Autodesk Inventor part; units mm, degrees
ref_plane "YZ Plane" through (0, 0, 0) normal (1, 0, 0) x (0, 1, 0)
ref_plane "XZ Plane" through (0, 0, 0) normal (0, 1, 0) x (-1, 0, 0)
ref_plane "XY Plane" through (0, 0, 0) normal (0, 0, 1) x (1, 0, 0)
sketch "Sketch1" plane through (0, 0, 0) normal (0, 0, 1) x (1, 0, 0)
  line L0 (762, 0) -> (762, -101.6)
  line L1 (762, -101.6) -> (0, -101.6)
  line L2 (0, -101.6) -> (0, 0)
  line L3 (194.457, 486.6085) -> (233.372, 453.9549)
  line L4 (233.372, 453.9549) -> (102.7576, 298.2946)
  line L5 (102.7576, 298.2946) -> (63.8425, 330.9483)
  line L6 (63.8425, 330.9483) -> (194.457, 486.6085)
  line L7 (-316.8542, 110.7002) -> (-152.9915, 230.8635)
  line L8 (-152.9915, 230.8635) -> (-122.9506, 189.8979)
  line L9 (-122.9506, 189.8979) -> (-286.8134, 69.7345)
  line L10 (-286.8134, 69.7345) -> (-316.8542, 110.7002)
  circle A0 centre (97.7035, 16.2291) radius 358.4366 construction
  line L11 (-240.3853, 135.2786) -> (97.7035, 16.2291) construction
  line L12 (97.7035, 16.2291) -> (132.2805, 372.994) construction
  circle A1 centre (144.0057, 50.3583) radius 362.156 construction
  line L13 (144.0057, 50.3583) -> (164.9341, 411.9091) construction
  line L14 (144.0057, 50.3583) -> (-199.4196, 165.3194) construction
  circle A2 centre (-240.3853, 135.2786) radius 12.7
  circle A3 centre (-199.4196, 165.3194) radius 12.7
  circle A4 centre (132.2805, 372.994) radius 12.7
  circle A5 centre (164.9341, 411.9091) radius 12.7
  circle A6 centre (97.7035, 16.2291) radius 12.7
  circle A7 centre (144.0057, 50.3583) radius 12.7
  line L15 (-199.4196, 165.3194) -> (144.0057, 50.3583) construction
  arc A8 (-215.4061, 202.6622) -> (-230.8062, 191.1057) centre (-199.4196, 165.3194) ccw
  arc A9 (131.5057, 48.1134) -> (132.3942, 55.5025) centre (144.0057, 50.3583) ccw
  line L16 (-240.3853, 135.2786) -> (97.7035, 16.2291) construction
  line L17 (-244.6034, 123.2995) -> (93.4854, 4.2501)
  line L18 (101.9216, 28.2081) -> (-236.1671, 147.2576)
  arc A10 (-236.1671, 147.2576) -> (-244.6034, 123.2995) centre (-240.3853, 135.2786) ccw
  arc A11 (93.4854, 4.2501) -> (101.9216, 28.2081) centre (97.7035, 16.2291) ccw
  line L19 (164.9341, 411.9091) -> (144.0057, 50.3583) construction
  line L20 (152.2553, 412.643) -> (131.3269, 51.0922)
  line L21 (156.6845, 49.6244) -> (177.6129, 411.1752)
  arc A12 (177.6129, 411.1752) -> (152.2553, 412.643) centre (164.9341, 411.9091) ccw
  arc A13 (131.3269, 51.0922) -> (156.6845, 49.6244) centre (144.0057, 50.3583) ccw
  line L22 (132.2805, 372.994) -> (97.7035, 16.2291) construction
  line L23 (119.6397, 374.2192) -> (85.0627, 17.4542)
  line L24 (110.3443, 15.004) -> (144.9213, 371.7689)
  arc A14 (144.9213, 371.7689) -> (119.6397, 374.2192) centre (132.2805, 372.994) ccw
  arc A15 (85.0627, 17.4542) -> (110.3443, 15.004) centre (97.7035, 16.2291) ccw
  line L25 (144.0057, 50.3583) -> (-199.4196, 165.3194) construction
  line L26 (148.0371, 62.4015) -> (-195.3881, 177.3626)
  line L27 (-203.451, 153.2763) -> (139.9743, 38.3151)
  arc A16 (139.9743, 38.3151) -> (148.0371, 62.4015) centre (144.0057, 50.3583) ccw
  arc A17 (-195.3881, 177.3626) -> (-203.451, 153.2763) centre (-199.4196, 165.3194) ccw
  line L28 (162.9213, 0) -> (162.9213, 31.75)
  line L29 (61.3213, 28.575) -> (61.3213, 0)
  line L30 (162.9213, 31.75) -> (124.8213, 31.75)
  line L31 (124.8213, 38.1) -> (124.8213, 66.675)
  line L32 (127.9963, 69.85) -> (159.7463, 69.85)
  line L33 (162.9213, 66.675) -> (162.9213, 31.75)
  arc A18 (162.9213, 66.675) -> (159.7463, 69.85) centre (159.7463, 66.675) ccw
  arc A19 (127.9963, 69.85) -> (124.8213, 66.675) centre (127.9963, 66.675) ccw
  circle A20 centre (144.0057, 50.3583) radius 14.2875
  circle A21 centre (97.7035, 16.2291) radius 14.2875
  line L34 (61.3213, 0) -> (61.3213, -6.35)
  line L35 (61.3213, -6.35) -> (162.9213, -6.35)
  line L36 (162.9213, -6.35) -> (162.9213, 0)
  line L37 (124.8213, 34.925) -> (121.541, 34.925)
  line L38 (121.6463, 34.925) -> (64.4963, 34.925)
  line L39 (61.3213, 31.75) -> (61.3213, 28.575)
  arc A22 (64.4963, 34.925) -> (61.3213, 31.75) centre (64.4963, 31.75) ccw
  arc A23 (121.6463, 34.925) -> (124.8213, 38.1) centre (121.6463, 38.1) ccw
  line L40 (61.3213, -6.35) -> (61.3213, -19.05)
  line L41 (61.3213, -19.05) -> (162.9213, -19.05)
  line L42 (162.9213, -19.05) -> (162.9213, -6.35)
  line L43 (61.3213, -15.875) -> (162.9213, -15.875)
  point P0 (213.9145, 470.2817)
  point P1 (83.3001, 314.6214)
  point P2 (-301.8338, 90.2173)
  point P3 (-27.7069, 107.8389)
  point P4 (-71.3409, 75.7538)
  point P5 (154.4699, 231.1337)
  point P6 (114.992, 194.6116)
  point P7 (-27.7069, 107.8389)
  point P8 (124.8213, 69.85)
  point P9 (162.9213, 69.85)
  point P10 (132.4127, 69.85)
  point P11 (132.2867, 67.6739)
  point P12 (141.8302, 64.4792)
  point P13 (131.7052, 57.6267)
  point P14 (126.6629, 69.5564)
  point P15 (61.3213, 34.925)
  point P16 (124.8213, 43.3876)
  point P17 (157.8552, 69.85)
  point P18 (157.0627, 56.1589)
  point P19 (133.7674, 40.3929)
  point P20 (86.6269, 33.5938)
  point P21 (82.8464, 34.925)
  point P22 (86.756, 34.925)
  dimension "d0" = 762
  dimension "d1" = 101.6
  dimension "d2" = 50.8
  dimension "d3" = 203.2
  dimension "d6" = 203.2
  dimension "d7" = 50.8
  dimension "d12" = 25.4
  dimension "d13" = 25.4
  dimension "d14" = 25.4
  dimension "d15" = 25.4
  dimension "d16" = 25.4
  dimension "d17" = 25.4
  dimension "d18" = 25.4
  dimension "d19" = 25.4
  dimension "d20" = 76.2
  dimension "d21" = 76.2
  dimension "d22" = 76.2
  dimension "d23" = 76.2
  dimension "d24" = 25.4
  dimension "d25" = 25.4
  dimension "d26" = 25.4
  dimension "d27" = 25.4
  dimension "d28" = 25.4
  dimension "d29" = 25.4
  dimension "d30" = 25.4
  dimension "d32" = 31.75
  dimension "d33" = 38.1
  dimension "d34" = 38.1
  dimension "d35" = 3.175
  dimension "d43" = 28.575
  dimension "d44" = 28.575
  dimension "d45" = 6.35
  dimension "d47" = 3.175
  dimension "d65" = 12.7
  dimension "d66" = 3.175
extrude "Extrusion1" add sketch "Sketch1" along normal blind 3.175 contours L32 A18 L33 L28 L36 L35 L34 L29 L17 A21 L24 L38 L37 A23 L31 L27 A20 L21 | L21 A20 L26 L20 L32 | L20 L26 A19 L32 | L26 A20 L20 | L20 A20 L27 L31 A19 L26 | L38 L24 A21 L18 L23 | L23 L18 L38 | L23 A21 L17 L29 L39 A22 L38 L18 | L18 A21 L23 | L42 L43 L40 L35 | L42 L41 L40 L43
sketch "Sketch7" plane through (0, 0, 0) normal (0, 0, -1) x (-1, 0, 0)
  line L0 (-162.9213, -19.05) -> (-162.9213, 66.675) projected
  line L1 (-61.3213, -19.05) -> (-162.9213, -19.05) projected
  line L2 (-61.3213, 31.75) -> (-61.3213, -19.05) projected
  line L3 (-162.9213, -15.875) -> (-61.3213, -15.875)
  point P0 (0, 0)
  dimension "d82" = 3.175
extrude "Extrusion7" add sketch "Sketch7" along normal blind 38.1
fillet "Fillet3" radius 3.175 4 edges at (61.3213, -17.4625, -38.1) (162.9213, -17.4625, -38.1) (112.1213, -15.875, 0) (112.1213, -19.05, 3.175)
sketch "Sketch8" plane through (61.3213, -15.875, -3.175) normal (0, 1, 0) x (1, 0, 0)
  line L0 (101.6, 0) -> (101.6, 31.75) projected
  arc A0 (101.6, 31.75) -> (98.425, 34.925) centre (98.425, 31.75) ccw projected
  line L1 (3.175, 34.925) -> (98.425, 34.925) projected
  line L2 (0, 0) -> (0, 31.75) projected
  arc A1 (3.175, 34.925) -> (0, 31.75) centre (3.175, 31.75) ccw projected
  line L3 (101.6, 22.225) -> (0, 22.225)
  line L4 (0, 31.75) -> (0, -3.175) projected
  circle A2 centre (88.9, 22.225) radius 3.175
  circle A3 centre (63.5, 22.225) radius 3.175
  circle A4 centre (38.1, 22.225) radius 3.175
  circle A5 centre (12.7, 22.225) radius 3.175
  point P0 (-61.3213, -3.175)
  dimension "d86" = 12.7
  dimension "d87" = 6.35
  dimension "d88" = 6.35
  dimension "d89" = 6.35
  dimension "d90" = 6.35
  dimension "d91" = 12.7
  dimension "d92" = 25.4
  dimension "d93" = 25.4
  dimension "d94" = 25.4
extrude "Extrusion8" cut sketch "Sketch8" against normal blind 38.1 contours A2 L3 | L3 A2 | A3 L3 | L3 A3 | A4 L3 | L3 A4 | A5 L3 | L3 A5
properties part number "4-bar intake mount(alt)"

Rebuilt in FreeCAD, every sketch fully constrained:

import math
import FreeCAD as App
import Part
import Sketcher
Q = App.Units.Quantity


def edges_at(feature, points):
    """Names of the edges that pass closest to the given points."""
    edges = feature.Shape.Edges
    near = lambda p: min(range(len(edges)), key=lambda i: edges[i].distToShape(Part.Vertex(*p))[0])
    return sorted({f"Edge{near(p) + 1}" for p in points})

doc = App.newDocument("Part")
body = doc.addObject("PartDesign::Body", "Body")

# Sketch on XY plane
sketch1 = doc.addObject("Sketcher::SketchObject", "Sketch")
body.addObject(sketch1)
sketch1.AttachmentSupport = (doc.XY_Plane, [""])
sketch1.MapMode = "FlatFace"
sketch1.addGeometry(Part.LineSegment(App.Vector(159.7463, 69.85, 0), App.Vector(127.9963, 69.85, 0)), False)
sketch1.addGeometry(Part.ArcOfCircle(Part.Circle(App.Vector(127.9963, 66.675, 0), App.Vector(0, 0, 1), 3.175), math.radians(90), math.radians(180)), False)
sketch1.addGeometry(Part.LineSegment(App.Vector(124.8213, 66.675, 0), App.Vector(124.8213, 38.1, 0)), False)
sketch1.addGeometry(Part.ArcOfCircle(Part.Circle(App.Vector(121.6463, 38.1, 0), App.Vector(0, 0, 1), 3.175), math.radians(-90), math.radians(0)), False)
sketch1.addGeometry(Part.LineSegment(App.Vector(121.6463, 34.925, 0), App.Vector(64.4963, 34.925, 0)), False)
sketch1.addGeometry(Part.ArcOfCircle(Part.Circle(App.Vector(64.4963, 31.75, 0), App.Vector(0, 0, 1), 3.175), math.radians(90), math.radians(180)), False)
sketch1.addGeometry(Part.LineSegment(App.Vector(61.3213, 31.75, 0), App.Vector(61.3213, -19.05, 0)), False)
sketch1.addGeometry(Part.LineSegment(App.Vector(61.3213, -19.05, 0), App.Vector(162.9213, -19.05, 0)), False)
sketch1.addGeometry(Part.LineSegment(App.Vector(162.9213, -19.05, 0), App.Vector(162.9213, 66.675, 0)), False)
sketch1.addGeometry(Part.ArcOfCircle(Part.Circle(App.Vector(159.7463, 66.675, 0), App.Vector(0, 0, 1), 3.175), math.radians(0), math.radians(90)), False)
sketch1.addGeometry(Part.Circle(App.Vector(97.7035, 16.2291, 0), App.Vector(0, 0, 1), 14.2875), False)
sketch1.addGeometry(Part.Circle(App.Vector(144.0057, 50.3583, 0), App.Vector(0, 0, 1), 14.2875), False)
sketch1.addConstraint(Sketcher.Constraint("Tangent", 0, 2, 1, 1))
sketch1.addConstraint(Sketcher.Constraint("Tangent", 1, 2, 2, 1))
sketch1.addConstraint(Sketcher.Constraint("Tangent", 2, 2, 3, 2))
sketch1.addConstraint(Sketcher.Constraint("Tangent", 3, 1, 4, 1))
sketch1.addConstraint(Sketcher.Constraint("Tangent", 4, 2, 5, 1))
sketch1.addConstraint(Sketcher.Constraint("Tangent", 5, 2, 6, 1))
sketch1.addConstraint(Sketcher.Constraint("Coincident", 6, 2, 7, 1))
sketch1.addConstraint(Sketcher.Constraint("Coincident", 7, 2, 8, 1))
sketch1.addConstraint(Sketcher.Constraint("Tangent", 8, 2, 9, 1))
sketch1.addConstraint(Sketcher.Constraint("Tangent", 9, 2, 0, 1))
sketch1.addConstraint(Sketcher.Constraint("Horizontal", 0))
sketch1.addConstraint(Sketcher.Constraint("Vertical", 2))
sketch1.addConstraint(Sketcher.Constraint("Horizontal", 4))
sketch1.addConstraint(Sketcher.Constraint("Vertical", 6))
sketch1.addConstraint(Sketcher.Constraint("Horizontal", 7))
sketch1.addConstraint(Sketcher.Constraint("Vertical", 8))
sketch1.addConstraint(Sketcher.Constraint("Equal", 1, 3))
sketch1.addConstraint(Sketcher.Constraint("Equal", 3, 5))
sketch1.addConstraint(Sketcher.Constraint("Equal", 5, 9))
sketch1.addConstraint(Sketcher.Constraint("Equal", 10, 11))
sketch1.addConstraint(Sketcher.Constraint("DistanceX", 7, 1, 7, 2, Q("4 in")))
sketch1.addConstraint(Sketcher.Constraint("DistanceY", 6, 2, 6, 1, Q("2 in")))
sketch1.addConstraint(Sketcher.Constraint("Diameter", 10, Q("1.125 in")))
sketch1.addConstraint(Sketcher.Constraint("Radius", 1, Q("0.125 in")))
sketch1.addConstraint(Sketcher.Constraint("DistanceX", 0, 2, 0, 1, Q("1.25 in")))
sketch1.addConstraint(Sketcher.Constraint("DistanceY", -1, 1, 3, 3, Q("1.5 in")))
sketch1.addConstraint(Sketcher.Constraint("DistanceY", 2, 2, 2, 1, Q("1.125 in")))
sketch1.addConstraint(Sketcher.Constraint("DistanceX", -1, 1, 10, 3, Q("3.8466 in")))
sketch1.addConstraint(Sketcher.Constraint("DistanceY", -1, 1, 11, 3, Q("1.9826 in")))
sketch1.addConstraint(Sketcher.Constraint("DistanceX", 11, 3, 9, 3, Q("0.6197 in")))
sketch1.addConstraint(Sketcher.Constraint("DistanceX", -1, 1, 1, 3, 127.9963))
sketch1.addConstraint(Sketcher.Constraint("DistanceY", -1, 1, 10, 3, 16.229))
pad1 = doc.addObject("PartDesign::Pad", "Pad")
body.addObject(pad1)
pad1.Profile = sketch1
pad1.Length = Q("0.125 in")

# Sketch on XY plane
sketch2 = doc.addObject("Sketcher::SketchObject", "Sketch001")
body.addObject(sketch2)
sketch2.AttachmentSupport = (doc.XY_Plane, [""])
sketch2.MapMode = "FlatFace"
sketch2.addGeometry(Part.LineSegment(App.Vector(162.9213, -15.875, 0), App.Vector(162.9213, -19.05, 0)), False)
sketch2.addGeometry(Part.LineSegment(App.Vector(162.9213, -19.05, 0), App.Vector(61.3213, -19.05, 0)), False)
sketch2.addGeometry(Part.LineSegment(App.Vector(61.3213, -19.05, 0), App.Vector(61.3213, -15.875, 0)), False)
sketch2.addGeometry(Part.LineSegment(App.Vector(61.3213, -15.875, 0), App.Vector(162.9213, -15.875, 0)), False)
sketch2.addConstraint(Sketcher.Constraint("Coincident", 0, 2, 1, 1))
sketch2.addConstraint(Sketcher.Constraint("Coincident", 1, 2, 2, 1))
sketch2.addConstraint(Sketcher.Constraint("Coincident", 2, 2, 3, 1))
sketch2.addConstraint(Sketcher.Constraint("Coincident", 3, 2, 0, 1))
sketch2.addConstraint(Sketcher.Constraint("Vertical", 0))
sketch2.addConstraint(Sketcher.Constraint("Horizontal", 1))
sketch2.addConstraint(Sketcher.Constraint("Vertical", 2))
sketch2.addConstraint(Sketcher.Constraint("Horizontal", 3))
sketch2.addConstraint(Sketcher.Constraint("DistanceX", 1, 2, 1, 1, Q("4 in")))
sketch2.addConstraint(Sketcher.Constraint("DistanceY", 0, 2, 0, 1, Q("0.125 in")))
sketch2.addConstraint(Sketcher.Constraint("DistanceY", 0, 2, -1, 1, Q("0.75 in")))
sketch2.addConstraint(Sketcher.Constraint("DistanceX", -1, 1, 0, 2, 162.9213))
pad2 = doc.addObject("PartDesign::Pad", "Pad001")
body.addObject(pad2)
pad2.Profile = sketch2
pad2.Length = Q("1.5 in")
pad2.Reversed = True
doc.recompute()

fillet = doc.addObject("PartDesign::Fillet", "Fillet")
body.addObject(fillet)
fillet.Base = (pad2, edges_at(pad2, [
    (61.321, -17.462, -38.1),
    (162.921, -17.462, -38.1),
    (112.121, -15.875, 0),
    (112.121, -19.05, 3.175),
]))
fillet.Radius = Q("0.125 in")

# Sketch on XZ plane
sketch3 = doc.addObject("Sketcher::SketchObject", "Sketch002")
body.addObject(sketch3)
sketch3.AttachmentSupport = (doc.XZ_Plane, [""])
sketch3.MapMode = "FlatFace"
sketch3.AttachmentOffset = App.Placement(App.Vector(0, 0, 0.625 * 25.4), App.Rotation())
sketch3.addGeometry(Part.Circle(App.Vector(150.2213, -25.4, 0), App.Vector(0, 0, 1), 3.175), False)
sketch3.addGeometry(Part.Circle(App.Vector(124.8213, -25.4, 0), App.Vector(0, 0, 1), 3.175), False)
sketch3.addGeometry(Part.Circle(App.Vector(99.4213, -25.4, 0), App.Vector(0, 0, 1), 3.175), False)
sketch3.addGeometry(Part.Circle(App.Vector(74.0213, -25.4, 0), App.Vector(0, 0, 1), 3.175), False)
sketch3.addConstraint(Sketcher.Constraint("Equal", 0, 1))
sketch3.addConstraint(Sketcher.Constraint("Equal", 1, 2))
sketch3.addConstraint(Sketcher.Constraint("Equal", 2, 3))
sketch3.addConstraint(Sketcher.Constraint("Horizontal", 0, 3, 1, 3))
sketch3.addConstraint(Sketcher.Constraint("Horizontal", 1, 3, 2, 3))
sketch3.addConstraint(Sketcher.Constraint("Horizontal", 2, 3, 3, 3))
sketch3.addConstraint(Sketcher.Constraint("Diameter", 0, Q("0.25 in")))
sketch3.addConstraint(Sketcher.Constraint("DistanceY", 0, 3, -1, 1, Q("1 in")))
sketch3.addConstraint(Sketcher.Constraint("DistanceX", 1, 3, 0, 3, Q("1 in")))
sketch3.addConstraint(Sketcher.Constraint("DistanceX", 2, 3, 1, 3, Q("1 in")))
sketch3.addConstraint(Sketcher.Constraint("DistanceX", 3, 3, 2, 3, Q("1 in")))
sketch3.addConstraint(Sketcher.Constraint("DistanceX", -1, 1, 0, 3, 150.2213))
pocket1 = doc.addObject("PartDesign::Pocket", "Pocket")
body.addObject(pocket1)
pocket1.Profile = sketch3
pocket1.Length = Q("1.5 in")
pocket1.Reversed = True

doc.recompute()
